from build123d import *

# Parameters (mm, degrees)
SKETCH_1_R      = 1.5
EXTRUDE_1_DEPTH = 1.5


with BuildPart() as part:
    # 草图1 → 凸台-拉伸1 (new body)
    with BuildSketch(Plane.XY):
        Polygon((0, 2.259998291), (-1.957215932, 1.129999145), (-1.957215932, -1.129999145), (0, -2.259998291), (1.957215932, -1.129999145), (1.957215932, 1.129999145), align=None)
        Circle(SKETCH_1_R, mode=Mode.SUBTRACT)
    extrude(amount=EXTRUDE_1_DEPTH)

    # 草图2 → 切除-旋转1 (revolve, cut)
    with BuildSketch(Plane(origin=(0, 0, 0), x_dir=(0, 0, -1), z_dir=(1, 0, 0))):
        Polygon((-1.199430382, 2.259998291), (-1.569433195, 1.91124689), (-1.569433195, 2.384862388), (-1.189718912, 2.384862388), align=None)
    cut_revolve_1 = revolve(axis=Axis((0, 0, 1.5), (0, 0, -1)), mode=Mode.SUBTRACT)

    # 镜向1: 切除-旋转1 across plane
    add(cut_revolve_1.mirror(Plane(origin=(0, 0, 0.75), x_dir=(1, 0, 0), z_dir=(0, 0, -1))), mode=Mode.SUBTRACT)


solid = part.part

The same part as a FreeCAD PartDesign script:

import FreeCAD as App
import Part
import Sketcher
from FreeCAD import Vector
Q = App.Units.Quantity


def add_polygon(sketch, points):
    """Adds a closed chain of lines whose ends are joined by coincident constraints."""
    first, n = sketch.GeometryCount, len(points)
    for a, b in zip(points, points[1:] + points[:1]):
        sketch.addGeometry(Part.LineSegment(App.Vector(*a, 0), App.Vector(*b, 0)), False)
    for i in range(n):
        sketch.addConstraint(Sketcher.Constraint("Coincident", first + i, 2, first + (i + 1) % n, 1))

doc = App.newDocument("Part")
params = doc.addObject("Spreadsheet::Sheet", "Params")
for row, (alias, value) in enumerate([
    ("sketch1_diameter", "3 mm"),
    ("sketch1_height", "2.259998 mm"),
    ("sketch1_length", "2.259998 mm"),
    ("pad1_length", "1.5 mm"),
    ("groove_angle", "360 deg"),
], start=1):
    params.set(f"A{row}", alias)
    params.set(f"B{row}", "=" + value)
    params.setAlias(f"B{row}", alias)

body = doc.addObject("PartDesign::Body", "Body")

# Sketch on XY plane
sketch1 = body.newObject("Sketcher::SketchObject", "Sketch")
sketch1.AttachmentSupport = (doc.getObject("XY_Plane"), [""])
sketch1.MapMode = "FlatFace"
add_polygon(sketch1, [(0, 2.3), (-2, 1.1), (-2, -1.1), (0, -2.3), (2, -1.1), (2, 1.1)])  # lines 0-5
sketch1.addGeometry(Part.Circle(Vector(0, 0, 0), Vector(0, 0, 1), 1.5), False)  # 6
sketch1.addConstraint([
    Sketcher.Constraint("Vertical", 1),
    Sketcher.Constraint("Vertical", 4),
    Sketcher.Constraint("Coincident", 6, 3, -1, 1),
    Sketcher.Constraint("Symmetric", 0, 2, 3, 2, -1, 1),
    Sketcher.Constraint("Symmetric", 2, 2, 5, 2, -1, 1),
    Sketcher.Constraint("PointOnObject", 2, 2, -2),
    Sketcher.Constraint("Parallel", 2, 5),
    Sketcher.Constraint("Horizontal", 1, 2, 3, 2),
    Sketcher.Constraint("Diameter", 6, 3.0),
    Sketcher.Constraint("Angle", 0, Q("-150 deg")),
    Sketcher.Constraint("DistanceY", 1, 2, 1, 1, 2.259998),
    Sketcher.Constraint("Distance", 0, 2.259998),
])
sketch1.setExpression("Constraints[14]", "Params.sketch1_diameter")
sketch1.setExpression("Constraints[16]", "Params.sketch1_height")
sketch1.setExpression("Constraints[17]", "Params.sketch1_length")
pad1 = body.newObject("PartDesign::Pad", "Pad")
pad1.Profile = sketch1
pad1.setExpression("Length", "Params.pad1_length")

# Sketch on YZ plane
sketch2 = body.newObject("Sketcher::SketchObject", "Sketch001")
sketch2.AttachmentSupport = (doc.getObject("YZ_Plane"), [""])
sketch2.MapMode = "FlatFace"
add_polygon(sketch2, [(1.91, 1.57), (2.26, 1.2), (2.38, 1.19), (2.38, 1.57)])  # lines 0-3
sketch2.addConstraint([
    Sketcher.Constraint("Vertical", 2),
    Sketcher.Constraint("Horizontal", 3),
    Sketcher.Constraint("DistanceX", -1, 1, 0, 2, 2.259998),
    Sketcher.Constraint("Distance", 0, 0.508458),
    Sketcher.Constraint("Distance", 1, 0.125241),
    Sketcher.Constraint("DistanceX", 3, 2, 3, 1, 0.473615),
    Sketcher.Constraint("DistanceY", 2, 1, 2, 2, 0.379714),
    Sketcher.Constraint("DistanceY", -1, 1, 0, 2, 1.19943),
])
groove = body.newObject("PartDesign::Groove", "Groove")
groove.Profile = sketch2
groove.ReferenceAxis = (sketch2, ["V_Axis"])
groove.setExpression("Angle", "Params.groove_angle")
doc.recompute()

datumplane = body.newObject("PartDesign::Plane", "DatumPlane")
datumplane.AttachmentSupport = (doc.getObject("XY_Plane"), [""])
datumplane.MapMode = "FlatFace"
datumplane.AttachmentOffset = App.Placement(Vector(0, 0, 0.75), App.Rotation())
mirrored = body.newObject("PartDesign::Mirrored", "Mirrored")
mirrored.Originals = [groove]
mirrored.MirrorPlane = (datumplane, [""])
body.Tip = mirrored

doc.recompute()
